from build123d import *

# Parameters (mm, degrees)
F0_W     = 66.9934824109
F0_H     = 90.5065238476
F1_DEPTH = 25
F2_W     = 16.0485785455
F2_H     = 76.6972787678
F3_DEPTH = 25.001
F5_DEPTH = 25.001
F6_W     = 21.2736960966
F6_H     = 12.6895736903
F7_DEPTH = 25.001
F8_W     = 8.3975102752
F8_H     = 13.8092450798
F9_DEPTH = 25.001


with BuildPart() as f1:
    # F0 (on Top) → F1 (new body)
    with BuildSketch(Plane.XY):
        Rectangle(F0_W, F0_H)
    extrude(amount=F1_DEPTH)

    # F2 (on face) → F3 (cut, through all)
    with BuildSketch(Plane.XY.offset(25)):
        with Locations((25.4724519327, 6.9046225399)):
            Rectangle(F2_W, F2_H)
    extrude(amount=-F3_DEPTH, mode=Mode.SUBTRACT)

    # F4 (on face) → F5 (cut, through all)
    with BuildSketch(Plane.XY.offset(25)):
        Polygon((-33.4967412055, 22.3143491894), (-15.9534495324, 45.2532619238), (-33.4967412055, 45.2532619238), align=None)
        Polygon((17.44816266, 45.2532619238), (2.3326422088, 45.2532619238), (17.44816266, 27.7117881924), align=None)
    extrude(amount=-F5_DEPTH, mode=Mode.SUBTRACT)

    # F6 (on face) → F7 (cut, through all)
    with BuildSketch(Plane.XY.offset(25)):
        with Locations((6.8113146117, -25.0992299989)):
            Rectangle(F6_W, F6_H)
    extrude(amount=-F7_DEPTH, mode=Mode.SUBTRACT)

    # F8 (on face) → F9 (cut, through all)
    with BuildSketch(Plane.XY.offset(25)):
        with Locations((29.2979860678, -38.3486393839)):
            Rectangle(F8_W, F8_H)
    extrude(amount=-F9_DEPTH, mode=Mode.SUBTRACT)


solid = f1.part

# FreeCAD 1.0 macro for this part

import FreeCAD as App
import Part
import Sketcher
Q = App.Units.Quantity

doc = App.newDocument("Part")
body = doc.addObject("PartDesign::Body", "Body")

# Sketch on XY plane
sketch1 = body.newObject("Sketcher::SketchObject", "Sketch")
sketch1.AttachmentSupport = (doc.getObject("XY_Plane"), [""])
sketch1.MapMode = "FlatFace"
sketch1.addGeometry(Part.LineSegment(App.Vector(-33.496741, 45.253262, 0), App.Vector(-33.496741, -45.253262, 0)), False)
sketch1.addGeometry(Part.LineSegment(App.Vector(-33.496741, -45.253262, 0), App.Vector(33.496741, -45.253262, 0)), False)
sketch1.addGeometry(Part.LineSegment(App.Vector(33.496741, -45.253262, 0), App.Vector(33.496741, 45.253262, 0)), False)
sketch1.addGeometry(Part.LineSegment(App.Vector(33.496741, 45.253262, 0), App.Vector(-33.496741, 45.253262, 0)), False)
sketch1.addConstraint(Sketcher.Constraint("Coincident", 0, 2, 1, 1))
sketch1.addConstraint(Sketcher.Constraint("Coincident", 1, 2, 2, 1))
sketch1.addConstraint(Sketcher.Constraint("Coincident", 2, 2, 3, 1))
sketch1.addConstraint(Sketcher.Constraint("Coincident", 3, 2, 0, 1))
sketch1.addConstraint(Sketcher.Constraint("Vertical", 0))
sketch1.addConstraint(Sketcher.Constraint("Horizontal", 1))
sketch1.addConstraint(Sketcher.Constraint("Vertical", 2))
sketch1.addConstraint(Sketcher.Constraint("Horizontal", 3))
sketch1.addConstraint(Sketcher.Constraint("Symmetric", 0, 2, 2, 2, -1, 1))
sketch1.addConstraint(Sketcher.Constraint("DistanceX", 1, 1, 1, 2, Q("66.993482 mm")))
sketch1.addConstraint(Sketcher.Constraint("DistanceY", 0, 2, 0, 1, Q("90.506524 mm")))
pad1 = body.newObject("PartDesign::Pad", "Pad")
pad1.Profile = sketch1
pad1.Length = 25

# Sketch on XY plane
sketch2 = body.newObject("Sketcher::SketchObject", "Sketch001")
sketch2.AttachmentSupport = (doc.getObject("XY_Plane"), [""])
sketch2.MapMode = "FlatFace"
sketch2.AttachmentOffset = App.Placement(App.Vector(0, 0, 25), App.Rotation())
sketch2.addGeometry(Part.LineSegment(App.Vector(17.448163, 45.253262, 0), App.Vector(17.448163, -31.444017, 0)), False)
sketch2.addGeometry(Part.LineSegment(App.Vector(17.448163, -31.444017, 0), App.Vector(33.496741, -31.444017, 0)), False)
sketch2.addGeometry(Part.LineSegment(App.Vector(33.496741, -31.444017, 0), App.Vector(33.496741, 45.253262, 0)), False)
sketch2.addGeometry(Part.LineSegment(App.Vector(33.496741, 45.253262, 0), App.Vector(17.448163, 45.253262, 0)), False)
sketch2.addConstraint(Sketcher.Constraint("Coincident", 0, 2, 1, 1))
sketch2.addConstraint(Sketcher.Constraint("Coincident", 1, 2, 2, 1))
sketch2.addConstraint(Sketcher.Constraint("Coincident", 2, 2, 3, 1))
sketch2.addConstraint(Sketcher.Constraint("Coincident", 3, 2, 0, 1))
sketch2.addConstraint(Sketcher.Constraint("Vertical", 0))
sketch2.addConstraint(Sketcher.Constraint("Horizontal", 1))
sketch2.addConstraint(Sketcher.Constraint("Vertical", 2))
sketch2.addConstraint(Sketcher.Constraint("Horizontal", 3))
sketch2.addConstraint(Sketcher.Constraint("DistanceX", 1, 1, 1, 2, Q("16.048579 mm")))
sketch2.addConstraint(Sketcher.Constraint("DistanceY", 0, 2, 0, 1, Q("76.697279 mm")))
sketch2.addConstraint(Sketcher.Constraint("DistanceX", -1, 1, 1, 2, Q("33.496741 mm")))
sketch2.addConstraint(Sketcher.Constraint("DistanceY", -1, 1, 2, 2, Q("45.253262 mm")))
pocket1 = body.newObject("PartDesign::Pocket", "Pocket")
pocket1.Profile = sketch2
pocket1.Type = "ThroughAll"

# Sketch on XY plane
sketch3 = body.newObject("Sketcher::SketchObject", "Sketch002")
sketch3.AttachmentSupport = (doc.getObject("XY_Plane"), [""])
sketch3.MapMode = "FlatFace"
sketch3.AttachmentOffset = App.Placement(App.Vector(0, 0, 25), App.Rotation())
sketch3.addGeometry(Part.LineSegment(App.Vector(-33.496741, 22.314349, 0), App.Vector(-15.95345, 45.253262, 0)), False)
sketch3.addGeometry(Part.LineSegment(App.Vector(-15.95345, 45.253262, 0), App.Vector(-33.496741, 45.253262, 0)), False)
sketch3.addGeometry(Part.LineSegment(App.Vector(-33.496741, 45.253262, 0), App.Vector(-33.496741, 22.314349, 0)), False)
sketch3.addGeometry(Part.LineSegment(App.Vector(17.448163, 45.253262, 0), App.Vector(2.332642, 45.253262, 0)), False)
sketch3.addGeometry(Part.LineSegment(App.Vector(2.332642, 45.253262, 0), App.Vector(17.448163, 27.711788, 0)), False)
sketch3.addGeometry(Part.LineSegment(App.Vector(17.448163, 27.711788, 0), App.Vector(17.448163, 45.253262, 0)), False)
sketch3.addConstraint(Sketcher.Constraint("Coincident", 0, 2, 1, 1))
sketch3.addConstraint(Sketcher.Constraint("Coincident", 1, 2, 2, 1))
sketch3.addConstraint(Sketcher.Constraint("Coincident", 2, 2, 0, 1))
sketch3.addConstraint(Sketcher.Constraint("Coincident", 3, 2, 4, 1))
sketch3.addConstraint(Sketcher.Constraint("Coincident", 4, 2, 5, 1))
sketch3.addConstraint(Sketcher.Constraint("Coincident", 5, 2, 3, 1))
sketch3.addConstraint(Sketcher.Constraint("Horizontal", 1))
sketch3.addConstraint(Sketcher.Constraint("Vertical", 2))
sketch3.addConstraint(Sketcher.Constraint("Horizontal", 3))
sketch3.addConstraint(Sketcher.Constraint("Vertical", 5))
sketch3.addConstraint(Sketcher.Constraint("Horizontal", 1, 2, 3, 2))
sketch3.addConstraint(Sketcher.Constraint("DistanceX", 1, 2, 1, 1, Q("17.543292 mm")))
sketch3.addConstraint(Sketcher.Constraint("DistanceX", 3, 2, 3, 1, Q("15.11552 mm")))
sketch3.addConstraint(Sketcher.Constraint("Distance", 0, Q("28.878379 mm")))
sketch3.addConstraint(Sketcher.Constraint("Distance", 4, Q("23.15561 mm")))
sketch3.addConstraint(Sketcher.Constraint("DistanceX", 0, 2, -1, 1, Q("15.95345 mm")))
sketch3.addConstraint(Sketcher.Constraint("DistanceY", -1, 1, 0, 2, Q("45.253262 mm")))
sketch3.addConstraint(Sketcher.Constraint("DistanceX", 0, 2, 3, 2, Q("18.286092 mm")))
pocket2 = body.newObject("PartDesign::Pocket", "Pocket001")
pocket2.Profile = sketch3
pocket2.Type = "ThroughAll"

# Sketch on XY plane
sketch4 = body.newObject("Sketcher::SketchObject", "Sketch003")
sketch4.AttachmentSupport = (doc.getObject("XY_Plane"), [""])
sketch4.MapMode = "FlatFace"
sketch4.AttachmentOffset = App.Placement(App.Vector(0, 0, 25), App.Rotation())
sketch4.addGeometry(Part.LineSegment(App.Vector(-3.825533, -18.754443, 0), App.Vector(-3.825533, -31.444017, 0)), False)
sketch4.addGeometry(Part.LineSegment(App.Vector(-3.825533, -31.444017, 0), App.Vector(17.448163, -31.444017, 0)), False)
sketch4.addGeometry(Part.LineSegment(App.Vector(17.448163, -31.444017, 0), App.Vector(17.448163, -18.754443, 0)), False)
sketch4.addGeometry(Part.LineSegment(App.Vector(17.448163, -18.754443, 0), App.Vector(-3.825533, -18.754443, 0)), False)
sketch4.addConstraint(Sketcher.Constraint("Coincident", 0, 2, 1, 1))
sketch4.addConstraint(Sketcher.Constraint("Coincident", 1, 2, 2, 1))
sketch4.addConstraint(Sketcher.Constraint("Coincident", 2, 2, 3, 1))
sketch4.addConstraint(Sketcher.Constraint("Coincident", 3, 2, 0, 1))
sketch4.addConstraint(Sketcher.Constraint("Vertical", 0))
sketch4.addConstraint(Sketcher.Constraint("Horizontal", 1))
sketch4.addConstraint(Sketcher.Constraint("Vertical", 2))
sketch4.addConstraint(Sketcher.Constraint("Horizontal", 3))
sketch4.addConstraint(Sketcher.Constraint("DistanceX", 1, 1, 1, 2, Q("21.273696 mm")))
sketch4.addConstraint(Sketcher.Constraint("DistanceY", 0, 2, 0, 1, Q("12.689574 mm")))
sketch4.addConstraint(Sketcher.Constraint("DistanceX", 0, 2, -1, 1, Q("3.825533 mm")))
sketch4.addConstraint(Sketcher.Constraint("DistanceY", 0, 2, -1, 1, Q("31.444017 mm")))
pocket3 = body.newObject("PartDesign::Pocket", "Pocket002")
pocket3.Profile = sketch4
pocket3.Type = "ThroughAll"

# Sketch on XY plane
sketch5 = body.newObject("Sketcher::SketchObject", "Sketch004")
sketch5.AttachmentSupport = (doc.getObject("XY_Plane"), [""])
sketch5.MapMode = "FlatFace"
sketch5.AttachmentOffset = App.Placement(App.Vector(0, 0, 25), App.Rotation())
sketch5.addGeometry(Part.LineSegment(App.Vector(25.099231, -31.444017, 0), App.Vector(25.099231, -45.253262, 0)), False)
sketch5.addGeometry(Part.LineSegment(App.Vector(25.099231, -45.253262, 0), App.Vector(33.496741, -45.253262, 0)), False)
sketch5.addGeometry(Part.LineSegment(App.Vector(33.496741, -45.253262, 0), App.Vector(33.496741, -31.444017, 0)), False)
sketch5.addGeometry(Part.LineSegment(App.Vector(33.496741, -31.444017, 0), App.Vector(25.099231, -31.444017, 0)), False)
sketch5.addConstraint(Sketcher.Constraint("Coincident", 0, 2, 1, 1))
sketch5.addConstraint(Sketcher.Constraint("Coincident", 1, 2, 2, 1))
sketch5.addConstraint(Sketcher.Constraint("Coincident", 2, 2, 3, 1))
sketch5.addConstraint(Sketcher.Constraint("Coincident", 3, 2, 0, 1))
sketch5.addConstraint(Sketcher.Constraint("Vertical", 0))
sketch5.addConstraint(Sketcher.Constraint("Horizontal", 1))
sketch5.addConstraint(Sketcher.Constraint("Vertical", 2))
sketch5.addConstraint(Sketcher.Constraint("Horizontal", 3))
sketch5.addConstraint(Sketcher.Constraint("DistanceX", 1, 1, 1, 2, Q("8.39751 mm")))
sketch5.addConstraint(Sketcher.Constraint("DistanceY", 0, 2, 0, 1, Q("13.809245 mm")))
sketch5.addConstraint(Sketcher.Constraint("DistanceX", -1, 1, 0, 2, Q("25.099231 mm")))
sketch5.addConstraint(Sketcher.Constraint("DistanceY", 0, 2, -1, 1, Q("45.253262 mm")))
pocket4 = body.newObject("PartDesign::Pocket", "Pocket003")
pocket4.Profile = sketch5
pocket4.Type = "ThroughAll"

doc.recompute()
